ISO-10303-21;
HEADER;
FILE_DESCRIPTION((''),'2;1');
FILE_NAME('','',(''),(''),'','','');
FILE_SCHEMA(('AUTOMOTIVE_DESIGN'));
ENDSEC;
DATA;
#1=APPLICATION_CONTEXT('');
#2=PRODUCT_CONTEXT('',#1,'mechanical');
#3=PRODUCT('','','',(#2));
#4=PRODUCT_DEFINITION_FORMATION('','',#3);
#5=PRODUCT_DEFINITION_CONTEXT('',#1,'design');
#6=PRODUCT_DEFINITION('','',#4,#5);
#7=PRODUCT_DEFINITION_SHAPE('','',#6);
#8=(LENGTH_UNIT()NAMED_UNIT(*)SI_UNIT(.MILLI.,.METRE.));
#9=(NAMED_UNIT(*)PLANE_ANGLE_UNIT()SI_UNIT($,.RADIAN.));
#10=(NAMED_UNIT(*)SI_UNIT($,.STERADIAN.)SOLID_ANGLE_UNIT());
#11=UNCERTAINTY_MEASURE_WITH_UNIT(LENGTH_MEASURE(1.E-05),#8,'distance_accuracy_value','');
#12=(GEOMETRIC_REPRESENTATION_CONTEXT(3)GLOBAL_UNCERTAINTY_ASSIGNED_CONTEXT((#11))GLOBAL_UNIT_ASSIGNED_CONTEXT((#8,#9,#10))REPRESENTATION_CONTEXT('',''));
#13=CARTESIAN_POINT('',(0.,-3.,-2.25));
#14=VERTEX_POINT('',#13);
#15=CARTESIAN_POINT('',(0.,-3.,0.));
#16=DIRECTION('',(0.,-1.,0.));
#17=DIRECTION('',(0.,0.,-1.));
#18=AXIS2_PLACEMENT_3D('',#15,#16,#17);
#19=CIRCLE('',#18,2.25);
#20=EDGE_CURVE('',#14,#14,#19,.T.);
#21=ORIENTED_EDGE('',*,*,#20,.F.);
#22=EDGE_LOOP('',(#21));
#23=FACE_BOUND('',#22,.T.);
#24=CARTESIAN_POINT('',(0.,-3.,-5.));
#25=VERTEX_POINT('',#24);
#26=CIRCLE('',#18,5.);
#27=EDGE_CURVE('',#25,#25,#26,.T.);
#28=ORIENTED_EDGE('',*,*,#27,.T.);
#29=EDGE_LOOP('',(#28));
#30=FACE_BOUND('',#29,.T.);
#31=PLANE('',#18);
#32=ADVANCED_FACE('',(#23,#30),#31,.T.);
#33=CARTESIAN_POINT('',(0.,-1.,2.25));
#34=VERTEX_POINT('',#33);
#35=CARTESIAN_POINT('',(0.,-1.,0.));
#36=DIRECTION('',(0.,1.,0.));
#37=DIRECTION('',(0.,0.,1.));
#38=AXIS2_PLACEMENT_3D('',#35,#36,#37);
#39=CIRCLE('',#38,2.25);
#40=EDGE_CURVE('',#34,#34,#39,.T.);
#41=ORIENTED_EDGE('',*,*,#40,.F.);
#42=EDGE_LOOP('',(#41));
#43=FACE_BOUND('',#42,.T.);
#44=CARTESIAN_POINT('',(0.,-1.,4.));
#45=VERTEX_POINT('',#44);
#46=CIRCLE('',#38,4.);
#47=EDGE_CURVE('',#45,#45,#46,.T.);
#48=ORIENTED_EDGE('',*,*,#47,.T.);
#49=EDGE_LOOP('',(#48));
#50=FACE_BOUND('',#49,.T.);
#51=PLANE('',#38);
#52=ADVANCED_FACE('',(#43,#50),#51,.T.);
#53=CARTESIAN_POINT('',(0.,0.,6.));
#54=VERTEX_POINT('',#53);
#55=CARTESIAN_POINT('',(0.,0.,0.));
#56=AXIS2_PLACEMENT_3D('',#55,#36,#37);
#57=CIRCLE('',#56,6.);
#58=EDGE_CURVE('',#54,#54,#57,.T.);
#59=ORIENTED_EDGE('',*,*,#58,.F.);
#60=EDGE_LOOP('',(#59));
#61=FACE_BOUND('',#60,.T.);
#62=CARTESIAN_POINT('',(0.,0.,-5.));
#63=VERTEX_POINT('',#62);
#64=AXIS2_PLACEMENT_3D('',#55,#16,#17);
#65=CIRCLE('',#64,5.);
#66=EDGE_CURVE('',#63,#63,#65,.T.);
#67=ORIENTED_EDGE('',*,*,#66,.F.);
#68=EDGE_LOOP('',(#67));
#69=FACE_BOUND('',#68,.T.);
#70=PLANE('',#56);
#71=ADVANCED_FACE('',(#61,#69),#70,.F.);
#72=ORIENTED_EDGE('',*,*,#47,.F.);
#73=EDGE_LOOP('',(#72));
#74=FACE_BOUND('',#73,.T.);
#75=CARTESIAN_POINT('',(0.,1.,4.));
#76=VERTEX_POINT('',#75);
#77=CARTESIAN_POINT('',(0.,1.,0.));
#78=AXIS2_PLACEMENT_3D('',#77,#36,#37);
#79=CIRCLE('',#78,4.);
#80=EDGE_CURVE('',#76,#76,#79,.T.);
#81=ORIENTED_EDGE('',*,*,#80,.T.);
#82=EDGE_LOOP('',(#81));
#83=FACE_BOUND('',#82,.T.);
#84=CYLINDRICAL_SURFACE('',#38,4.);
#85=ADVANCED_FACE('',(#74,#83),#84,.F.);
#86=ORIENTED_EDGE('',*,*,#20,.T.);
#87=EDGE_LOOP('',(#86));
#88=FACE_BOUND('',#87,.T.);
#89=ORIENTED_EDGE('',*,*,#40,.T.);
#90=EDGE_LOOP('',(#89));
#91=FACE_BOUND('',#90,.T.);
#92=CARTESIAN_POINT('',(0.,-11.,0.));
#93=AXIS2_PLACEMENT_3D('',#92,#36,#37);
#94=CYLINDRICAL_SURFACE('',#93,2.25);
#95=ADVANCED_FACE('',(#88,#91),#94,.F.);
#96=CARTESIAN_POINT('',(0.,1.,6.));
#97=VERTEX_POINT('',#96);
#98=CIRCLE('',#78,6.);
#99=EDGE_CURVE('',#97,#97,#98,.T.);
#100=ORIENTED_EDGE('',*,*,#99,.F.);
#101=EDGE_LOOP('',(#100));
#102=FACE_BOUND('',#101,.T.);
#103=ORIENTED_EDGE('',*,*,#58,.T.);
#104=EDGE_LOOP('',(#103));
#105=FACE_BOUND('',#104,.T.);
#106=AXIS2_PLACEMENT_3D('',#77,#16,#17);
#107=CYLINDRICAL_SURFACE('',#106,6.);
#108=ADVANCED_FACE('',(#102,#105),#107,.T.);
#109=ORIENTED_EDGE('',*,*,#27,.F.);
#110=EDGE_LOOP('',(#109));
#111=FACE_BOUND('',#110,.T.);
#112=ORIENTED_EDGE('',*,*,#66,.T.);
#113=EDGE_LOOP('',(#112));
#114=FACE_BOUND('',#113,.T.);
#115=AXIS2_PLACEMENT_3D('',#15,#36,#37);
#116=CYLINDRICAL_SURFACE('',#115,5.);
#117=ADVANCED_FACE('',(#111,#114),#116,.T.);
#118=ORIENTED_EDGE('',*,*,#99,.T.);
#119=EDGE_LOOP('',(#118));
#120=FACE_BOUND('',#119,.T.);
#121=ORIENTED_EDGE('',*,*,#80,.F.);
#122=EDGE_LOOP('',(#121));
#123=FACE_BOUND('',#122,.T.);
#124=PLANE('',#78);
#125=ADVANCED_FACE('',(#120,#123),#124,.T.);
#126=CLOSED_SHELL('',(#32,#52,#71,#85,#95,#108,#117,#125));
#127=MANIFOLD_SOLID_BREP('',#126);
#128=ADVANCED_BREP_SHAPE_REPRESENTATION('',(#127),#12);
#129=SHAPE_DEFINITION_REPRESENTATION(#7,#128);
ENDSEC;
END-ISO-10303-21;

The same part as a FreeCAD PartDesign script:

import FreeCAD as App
import Part
import Sketcher

doc = App.newDocument("Part")
body = doc.addObject("PartDesign::Body", "Body")

sketch1 = body.newObject("Sketcher::SketchObject", "Sketch")
sketch1.AttachmentSupport = (doc.getObject("XZ_Plane"), [""])
sketch1.MapMode = "FlatFace"
sketch1.addGeometry(Part.Circle(App.Vector(0, 0, 0), App.Vector(0, 0, 1), 6), False)
sketch1.addConstraint(Sketcher.Constraint("Coincident", 0, 3, -1, 1))
sketch1.addConstraint(Sketcher.Constraint("Diameter", 0, 12.0))
pad1 = body.newObject("PartDesign::Pad", "Pad")
pad1.Profile = sketch1
pad1.Length = 1
pad1.Reversed = True

sketch2 = body.newObject("Sketcher::SketchObject", "Sketch001")
sketch2.AttachmentSupport = (doc.getObject("XZ_Plane"), [""])
sketch2.MapMode = "FlatFace"
sketch2.addGeometry(Part.Circle(App.Vector(0, 0, 0), App.Vector(0, 0, 1), 5), False)
sketch2.addConstraint(Sketcher.Constraint("Coincident", 0, 3, -1, 1))
sketch2.addConstraint(Sketcher.Constraint("Diameter", 0, 10.0))
pad2 = body.newObject("PartDesign::Pad", "Pad001")
pad2.Profile = sketch2
pad2.Length = 3

sketch3 = body.newObject("Sketcher::SketchObject", "Sketch002")
sketch3.AttachmentSupport = (doc.getObject("XZ_Plane"), [""])
sketch3.MapMode = "FlatFace"
sketch3.AttachmentOffset = App.Placement(App.Vector(0, 0, -1), App.Rotation())
sketch3.addGeometry(Part.Circle(App.Vector(0, 0, 0), App.Vector(0, 0, 1), 4), False)
sketch3.addConstraint(Sketcher.Constraint("Coincident", 0, 3, -1, 1))
sketch3.addConstraint(Sketcher.Constraint("Diameter", 0, 8.0))
pocket1 = body.newObject("PartDesign::Pocket", "Pocket")
pocket1.Profile = sketch3
pocket1.Length = 2
pocket1.Reversed = True

sketch4 = body.newObject("Sketcher::SketchObject", "Sketch003")
sketch4.AttachmentSupport = (doc.getObject("XZ_Plane"), [""])
sketch4.MapMode = "FlatFace"
sketch4.AttachmentOffset = App.Placement(App.Vector(0, 0, 1), App.Rotation())
sketch4.addGeometry(Part.Circle(App.Vector(0, 0, 0), App.Vector(0, 0, 1), 2.2), False)
sketch4.addConstraint(Sketcher.Constraint("Coincident", 0, 3, -1, 1))
sketch4.addConstraint(Sketcher.Constraint("Diameter", 0, 4.5))
pocket2 = body.newObject("PartDesign::Pocket", "Pocket001")
pocket2.Profile = sketch4
pocket2.Length = 10
pocket2.Reversed = True

doc.recompute()
